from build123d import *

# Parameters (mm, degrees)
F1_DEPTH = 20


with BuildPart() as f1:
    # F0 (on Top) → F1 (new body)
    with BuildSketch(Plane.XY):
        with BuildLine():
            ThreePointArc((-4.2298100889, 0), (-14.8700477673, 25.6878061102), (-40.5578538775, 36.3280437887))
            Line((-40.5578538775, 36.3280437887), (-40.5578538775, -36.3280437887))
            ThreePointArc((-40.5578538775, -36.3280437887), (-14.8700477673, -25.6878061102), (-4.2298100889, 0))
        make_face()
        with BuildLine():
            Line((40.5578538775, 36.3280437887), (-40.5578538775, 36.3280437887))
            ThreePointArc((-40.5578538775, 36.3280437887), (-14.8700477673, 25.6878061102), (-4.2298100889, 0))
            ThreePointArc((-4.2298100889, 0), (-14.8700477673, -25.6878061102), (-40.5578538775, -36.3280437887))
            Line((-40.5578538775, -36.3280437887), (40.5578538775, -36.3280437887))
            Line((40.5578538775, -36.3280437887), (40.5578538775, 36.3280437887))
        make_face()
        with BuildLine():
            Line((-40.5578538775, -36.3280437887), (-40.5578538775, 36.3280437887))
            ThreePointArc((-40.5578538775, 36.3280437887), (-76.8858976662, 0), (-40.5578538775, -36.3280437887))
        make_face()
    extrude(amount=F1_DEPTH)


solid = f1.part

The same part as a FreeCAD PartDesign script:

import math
import FreeCAD as App
import Part
import Sketcher

V = App.Vector
Q = App.Units.Quantity

doc = App.newDocument("Part")
body = doc.addObject("PartDesign::Body", "Body")

# Sketch on XY plane
sketch1 = doc.addObject("Sketcher::SketchObject", "Sketch")
body.addObject(sketch1)
sketch1.AttachmentSupport = (doc.XY_Plane, [""])
sketch1.MapMode = "FlatFace"
sketch1.addGeometry(Part.LineSegment(V(-41, -36, 0), V(41, -36, 0)), False)
sketch1.addGeometry(Part.LineSegment(V(41, -36, 0), V(41, 36, 0)), False)
sketch1.addGeometry(Part.LineSegment(V(41, 36, 0), V(-41, 36, 0)), False)
sketch1.addGeometry(Part.ArcOfCircle(Part.Circle(V(-41, 0, 0), V(0, 0, 1), 36), math.radians(90), math.radians(270)), False)
sketch1.addConstraint(Sketcher.Constraint("Coincident", 0, 2, 1, 1))
sketch1.addConstraint(Sketcher.Constraint("Coincident", 1, 2, 2, 1))
sketch1.addConstraint(Sketcher.Constraint("Tangent", 2, 2, 3, 1))
sketch1.addConstraint(Sketcher.Constraint("Tangent", 3, 2, 0, 1))
sketch1.addConstraint(Sketcher.Constraint("Horizontal", 0))
sketch1.addConstraint(Sketcher.Constraint("Vertical", 1))
sketch1.addConstraint(Sketcher.Constraint("Horizontal", 2))
sketch1.addConstraint(Sketcher.Constraint("Symmetric", 0, 2, 2, 2, -1, 1))
sketch1.addConstraint(Sketcher.Constraint("Radius", 3, Q("36.328044 mm")))
sketch1.addConstraint(Sketcher.Constraint("DistanceX", 0, 1, 0, 2, Q("81.115708 mm")))
pad1 = doc.addObject("PartDesign::Pad", "Pad")
body.addObject(pad1)
pad1.Profile = sketch1
pad1.Length = 20

doc.recompute()
